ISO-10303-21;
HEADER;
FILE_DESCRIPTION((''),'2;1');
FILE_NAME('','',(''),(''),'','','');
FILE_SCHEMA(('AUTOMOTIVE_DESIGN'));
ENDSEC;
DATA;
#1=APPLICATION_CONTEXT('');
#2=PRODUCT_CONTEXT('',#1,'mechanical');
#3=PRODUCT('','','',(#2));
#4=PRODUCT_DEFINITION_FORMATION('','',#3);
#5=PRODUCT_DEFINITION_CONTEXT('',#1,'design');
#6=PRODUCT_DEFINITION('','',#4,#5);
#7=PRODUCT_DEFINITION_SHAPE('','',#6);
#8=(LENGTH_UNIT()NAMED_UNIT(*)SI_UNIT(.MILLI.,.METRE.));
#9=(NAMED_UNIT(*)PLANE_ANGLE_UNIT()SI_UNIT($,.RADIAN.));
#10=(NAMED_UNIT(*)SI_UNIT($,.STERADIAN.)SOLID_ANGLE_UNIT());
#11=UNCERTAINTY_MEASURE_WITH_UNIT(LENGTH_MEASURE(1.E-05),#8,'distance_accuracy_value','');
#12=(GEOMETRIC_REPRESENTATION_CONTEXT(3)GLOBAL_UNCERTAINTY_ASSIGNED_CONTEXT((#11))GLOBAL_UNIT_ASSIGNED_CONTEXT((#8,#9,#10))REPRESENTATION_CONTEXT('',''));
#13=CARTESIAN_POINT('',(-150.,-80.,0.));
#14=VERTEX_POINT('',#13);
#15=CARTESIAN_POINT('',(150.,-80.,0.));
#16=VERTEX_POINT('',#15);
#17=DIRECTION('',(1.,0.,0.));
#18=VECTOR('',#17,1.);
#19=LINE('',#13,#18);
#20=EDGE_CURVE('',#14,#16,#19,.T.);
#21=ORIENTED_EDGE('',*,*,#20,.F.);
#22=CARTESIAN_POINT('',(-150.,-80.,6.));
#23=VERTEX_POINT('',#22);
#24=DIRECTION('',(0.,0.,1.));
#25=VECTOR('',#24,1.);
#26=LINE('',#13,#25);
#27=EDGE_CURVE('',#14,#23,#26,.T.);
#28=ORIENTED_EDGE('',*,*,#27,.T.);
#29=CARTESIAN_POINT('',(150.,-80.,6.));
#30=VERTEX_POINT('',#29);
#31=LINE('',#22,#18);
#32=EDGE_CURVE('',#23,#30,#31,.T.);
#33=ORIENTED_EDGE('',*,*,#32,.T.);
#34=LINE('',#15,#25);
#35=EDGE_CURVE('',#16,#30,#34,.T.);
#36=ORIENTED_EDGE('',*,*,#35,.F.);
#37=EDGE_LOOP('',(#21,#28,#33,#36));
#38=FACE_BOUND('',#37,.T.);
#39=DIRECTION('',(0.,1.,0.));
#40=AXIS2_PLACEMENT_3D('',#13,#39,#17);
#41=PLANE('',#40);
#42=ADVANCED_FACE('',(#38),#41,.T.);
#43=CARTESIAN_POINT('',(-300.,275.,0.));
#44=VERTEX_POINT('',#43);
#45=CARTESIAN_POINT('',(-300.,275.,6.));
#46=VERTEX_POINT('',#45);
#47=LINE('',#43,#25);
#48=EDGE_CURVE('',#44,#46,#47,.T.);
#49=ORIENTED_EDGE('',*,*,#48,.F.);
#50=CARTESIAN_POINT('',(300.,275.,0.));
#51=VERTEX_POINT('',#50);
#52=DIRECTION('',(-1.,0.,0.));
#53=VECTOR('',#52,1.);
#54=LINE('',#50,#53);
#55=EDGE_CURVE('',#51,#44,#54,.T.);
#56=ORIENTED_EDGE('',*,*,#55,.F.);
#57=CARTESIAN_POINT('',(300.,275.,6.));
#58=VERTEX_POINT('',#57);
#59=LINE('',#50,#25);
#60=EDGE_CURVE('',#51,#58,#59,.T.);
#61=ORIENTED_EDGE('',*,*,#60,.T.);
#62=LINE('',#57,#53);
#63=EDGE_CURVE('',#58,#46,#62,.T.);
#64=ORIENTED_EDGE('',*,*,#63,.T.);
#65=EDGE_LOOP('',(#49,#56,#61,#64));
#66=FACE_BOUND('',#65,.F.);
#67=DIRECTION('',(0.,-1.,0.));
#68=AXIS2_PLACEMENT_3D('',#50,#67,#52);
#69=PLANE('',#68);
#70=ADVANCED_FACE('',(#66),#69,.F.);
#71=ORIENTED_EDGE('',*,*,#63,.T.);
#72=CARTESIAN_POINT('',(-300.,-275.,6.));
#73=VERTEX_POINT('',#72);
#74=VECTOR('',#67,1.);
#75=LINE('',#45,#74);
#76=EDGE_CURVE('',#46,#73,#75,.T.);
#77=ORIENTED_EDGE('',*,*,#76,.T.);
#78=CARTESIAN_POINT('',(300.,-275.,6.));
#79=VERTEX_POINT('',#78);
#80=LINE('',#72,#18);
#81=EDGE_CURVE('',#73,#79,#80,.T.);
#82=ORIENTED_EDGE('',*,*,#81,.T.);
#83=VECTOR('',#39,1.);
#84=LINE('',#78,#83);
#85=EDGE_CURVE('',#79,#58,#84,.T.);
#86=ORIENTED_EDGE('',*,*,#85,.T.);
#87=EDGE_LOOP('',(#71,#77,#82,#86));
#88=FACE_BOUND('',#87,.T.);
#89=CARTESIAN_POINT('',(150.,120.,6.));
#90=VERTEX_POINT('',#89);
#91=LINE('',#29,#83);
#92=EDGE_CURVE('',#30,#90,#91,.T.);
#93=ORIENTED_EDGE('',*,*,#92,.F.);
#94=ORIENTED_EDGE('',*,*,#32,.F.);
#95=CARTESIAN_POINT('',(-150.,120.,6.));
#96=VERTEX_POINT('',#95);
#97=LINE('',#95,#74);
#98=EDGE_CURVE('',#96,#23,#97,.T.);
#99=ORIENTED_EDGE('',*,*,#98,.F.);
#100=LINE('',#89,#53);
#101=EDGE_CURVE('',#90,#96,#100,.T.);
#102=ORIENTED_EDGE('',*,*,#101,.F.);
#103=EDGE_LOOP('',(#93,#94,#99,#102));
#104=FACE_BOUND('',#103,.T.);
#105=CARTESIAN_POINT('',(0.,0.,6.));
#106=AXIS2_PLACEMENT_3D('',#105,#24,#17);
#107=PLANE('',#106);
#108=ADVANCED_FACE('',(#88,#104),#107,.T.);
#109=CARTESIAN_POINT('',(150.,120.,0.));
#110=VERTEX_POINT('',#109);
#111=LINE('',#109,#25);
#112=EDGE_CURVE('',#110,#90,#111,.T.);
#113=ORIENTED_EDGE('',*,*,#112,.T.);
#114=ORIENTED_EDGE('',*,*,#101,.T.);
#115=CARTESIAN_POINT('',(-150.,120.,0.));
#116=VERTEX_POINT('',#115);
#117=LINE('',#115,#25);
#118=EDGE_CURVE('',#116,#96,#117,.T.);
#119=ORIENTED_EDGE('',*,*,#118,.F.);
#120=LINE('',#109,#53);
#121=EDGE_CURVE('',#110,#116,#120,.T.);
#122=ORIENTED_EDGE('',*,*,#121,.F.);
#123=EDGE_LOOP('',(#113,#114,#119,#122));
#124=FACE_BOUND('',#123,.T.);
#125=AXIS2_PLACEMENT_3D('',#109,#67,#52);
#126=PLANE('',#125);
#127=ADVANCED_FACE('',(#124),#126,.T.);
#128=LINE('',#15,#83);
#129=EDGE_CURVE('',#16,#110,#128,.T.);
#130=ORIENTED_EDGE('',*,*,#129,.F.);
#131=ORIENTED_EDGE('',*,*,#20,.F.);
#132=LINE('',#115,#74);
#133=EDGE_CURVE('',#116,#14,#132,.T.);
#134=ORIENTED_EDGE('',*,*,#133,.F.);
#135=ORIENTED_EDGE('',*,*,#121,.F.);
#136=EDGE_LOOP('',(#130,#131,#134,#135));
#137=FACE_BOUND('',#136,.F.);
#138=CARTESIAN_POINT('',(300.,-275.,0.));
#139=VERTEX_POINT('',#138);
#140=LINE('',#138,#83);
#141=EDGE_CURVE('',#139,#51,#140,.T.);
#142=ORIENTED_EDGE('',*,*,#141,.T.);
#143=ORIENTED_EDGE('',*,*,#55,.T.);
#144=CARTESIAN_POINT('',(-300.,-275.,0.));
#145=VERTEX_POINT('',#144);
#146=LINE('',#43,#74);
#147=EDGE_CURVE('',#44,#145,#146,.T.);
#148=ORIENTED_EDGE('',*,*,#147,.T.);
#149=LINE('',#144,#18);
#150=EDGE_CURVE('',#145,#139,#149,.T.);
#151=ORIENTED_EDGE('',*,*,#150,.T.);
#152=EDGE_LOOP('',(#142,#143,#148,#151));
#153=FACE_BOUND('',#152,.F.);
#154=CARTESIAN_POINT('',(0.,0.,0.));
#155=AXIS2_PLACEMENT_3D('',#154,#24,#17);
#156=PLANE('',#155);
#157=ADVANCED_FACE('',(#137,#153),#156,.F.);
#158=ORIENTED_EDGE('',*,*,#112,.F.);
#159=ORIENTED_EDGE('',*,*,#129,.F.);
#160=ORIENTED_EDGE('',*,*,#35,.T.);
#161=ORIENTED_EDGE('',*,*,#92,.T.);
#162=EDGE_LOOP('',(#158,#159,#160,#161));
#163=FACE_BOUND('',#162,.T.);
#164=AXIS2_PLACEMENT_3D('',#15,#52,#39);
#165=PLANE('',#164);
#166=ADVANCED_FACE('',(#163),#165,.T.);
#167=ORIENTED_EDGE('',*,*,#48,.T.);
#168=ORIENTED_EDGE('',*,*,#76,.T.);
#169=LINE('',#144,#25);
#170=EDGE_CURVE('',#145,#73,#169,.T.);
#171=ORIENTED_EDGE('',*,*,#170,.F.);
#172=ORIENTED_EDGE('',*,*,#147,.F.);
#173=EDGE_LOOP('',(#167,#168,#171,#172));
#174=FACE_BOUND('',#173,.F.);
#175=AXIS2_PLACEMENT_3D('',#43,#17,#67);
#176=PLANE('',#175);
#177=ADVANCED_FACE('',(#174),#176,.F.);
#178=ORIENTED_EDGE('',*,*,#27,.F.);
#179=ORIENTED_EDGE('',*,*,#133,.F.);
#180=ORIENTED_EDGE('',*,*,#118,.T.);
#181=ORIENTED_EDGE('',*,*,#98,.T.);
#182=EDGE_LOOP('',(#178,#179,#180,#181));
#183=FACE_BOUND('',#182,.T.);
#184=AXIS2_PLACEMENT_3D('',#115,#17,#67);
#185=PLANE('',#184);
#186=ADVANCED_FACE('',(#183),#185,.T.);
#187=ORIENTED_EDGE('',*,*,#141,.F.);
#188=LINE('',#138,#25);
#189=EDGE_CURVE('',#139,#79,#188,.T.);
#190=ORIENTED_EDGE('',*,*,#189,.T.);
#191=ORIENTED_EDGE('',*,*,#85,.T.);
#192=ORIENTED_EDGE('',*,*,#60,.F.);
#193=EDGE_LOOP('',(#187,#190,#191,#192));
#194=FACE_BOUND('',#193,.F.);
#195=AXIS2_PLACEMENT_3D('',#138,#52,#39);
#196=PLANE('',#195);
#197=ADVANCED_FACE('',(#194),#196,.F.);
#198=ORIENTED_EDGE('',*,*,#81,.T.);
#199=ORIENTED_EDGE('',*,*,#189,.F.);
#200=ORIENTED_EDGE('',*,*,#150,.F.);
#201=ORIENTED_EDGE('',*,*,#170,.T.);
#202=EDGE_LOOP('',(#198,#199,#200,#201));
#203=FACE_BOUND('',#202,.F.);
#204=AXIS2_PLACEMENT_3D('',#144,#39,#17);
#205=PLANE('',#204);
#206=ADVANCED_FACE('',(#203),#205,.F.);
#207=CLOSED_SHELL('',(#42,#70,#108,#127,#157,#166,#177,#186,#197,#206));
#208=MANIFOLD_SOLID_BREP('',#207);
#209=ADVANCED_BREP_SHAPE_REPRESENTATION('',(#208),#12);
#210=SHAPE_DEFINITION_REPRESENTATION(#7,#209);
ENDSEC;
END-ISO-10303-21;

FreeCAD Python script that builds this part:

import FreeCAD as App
import Part
import Sketcher

V = App.Vector
Q = App.Units.Quantity

doc = App.newDocument("Part")
params = doc.addObject("Spreadsheet::Sheet", "Params")
for row, (alias, value) in enumerate([
    ("sketch1_width", "600 mm"),
    ("sketch1_width2", "300 mm"),
    ("sketch1_height", "550 mm"),
    ("sketch1_height2", "200 mm"),
    ("pad1_length", "6 mm"),
], start=1):
    params.set(f"A{row}", alias)
    params.set(f"B{row}", "=" + value)
    params.setAlias(f"B{row}", alias)

body = doc.addObject("PartDesign::Body", "Body")

# Sketch on XY plane
sketch1 = body.newObject("Sketcher::SketchObject", "Sketch")
sketch1.AttachmentSupport = (doc.getObject("XY_Plane"), [""])
sketch1.MapMode = "FlatFace"
sketch1.addGeometry(Part.LineSegment(V(-300, 275, 0), V(-300, -275, 0)), False)
sketch1.addGeometry(Part.LineSegment(V(-300, -275, 0), V(300, -275, 0)), False)
sketch1.addGeometry(Part.LineSegment(V(300, -275, 0), V(300, 275, 0)), False)
sketch1.addGeometry(Part.LineSegment(V(300, 275, 0), V(-300, 275, 0)), False)
sketch1.addGeometry(Part.LineSegment(V(150, -80, 0), V(-150, -80, 0)), False)
sketch1.addGeometry(Part.LineSegment(V(-150, -80, 0), V(-150, 120, 0)), False)
sketch1.addGeometry(Part.LineSegment(V(-150, 120, 0), V(150, 120, 0)), False)
sketch1.addGeometry(Part.LineSegment(V(150, 120, 0), V(150, -80, 0)), False)
sketch1.addConstraint(Sketcher.Constraint("Coincident", 0, 2, 1, 1))
sketch1.addConstraint(Sketcher.Constraint("Coincident", 1, 2, 2, 1))
sketch1.addConstraint(Sketcher.Constraint("Coincident", 2, 2, 3, 1))
sketch1.addConstraint(Sketcher.Constraint("Coincident", 3, 2, 0, 1))
sketch1.addConstraint(Sketcher.Constraint("Coincident", 4, 2, 5, 1))
sketch1.addConstraint(Sketcher.Constraint("Coincident", 5, 2, 6, 1))
sketch1.addConstraint(Sketcher.Constraint("Coincident", 6, 2, 7, 1))
sketch1.addConstraint(Sketcher.Constraint("Coincident", 7, 2, 4, 1))
sketch1.addConstraint(Sketcher.Constraint("Vertical", 0))
sketch1.addConstraint(Sketcher.Constraint("Horizontal", 1))
sketch1.addConstraint(Sketcher.Constraint("Vertical", 2))
sketch1.addConstraint(Sketcher.Constraint("Horizontal", 3))
sketch1.addConstraint(Sketcher.Constraint("Horizontal", 4))
sketch1.addConstraint(Sketcher.Constraint("Vertical", 5))
sketch1.addConstraint(Sketcher.Constraint("Horizontal", 6))
sketch1.addConstraint(Sketcher.Constraint("Vertical", 7))
sketch1.addConstraint(Sketcher.Constraint("Symmetric", 0, 2, 2, 2, -1, 1))
sketch1.addConstraint(Sketcher.Constraint("DistanceX", 1, 1, 1, 2, Q("600 mm")))
sketch1.addConstraint(Sketcher.Constraint("DistanceX", 4, 2, 4, 1, Q("300 mm")))
sketch1.addConstraint(Sketcher.Constraint("DistanceY", 0, 2, 0, 1, Q("550 mm")))
sketch1.addConstraint(Sketcher.Constraint("DistanceY", 5, 1, 5, 2, Q("200 mm")))
sketch1.addConstraint(Sketcher.Constraint("DistanceX", 4, 2, -1, 1, Q("150 mm")))
sketch1.addConstraint(Sketcher.Constraint("DistanceY", 4, 2, -1, 1, Q("80 mm")))
sketch1.setExpression("Constraints[17]", "Params.sketch1_width")
sketch1.setExpression("Constraints[18]", "Params.sketch1_width2")
sketch1.setExpression("Constraints[19]", "Params.sketch1_height")
sketch1.setExpression("Constraints[20]", "Params.sketch1_height2")
pad1 = body.newObject("PartDesign::Pad", "Pad")
pad1.Profile = sketch1
pad1.setExpression("Length", "Params.pad1_length")

doc.recompute()
